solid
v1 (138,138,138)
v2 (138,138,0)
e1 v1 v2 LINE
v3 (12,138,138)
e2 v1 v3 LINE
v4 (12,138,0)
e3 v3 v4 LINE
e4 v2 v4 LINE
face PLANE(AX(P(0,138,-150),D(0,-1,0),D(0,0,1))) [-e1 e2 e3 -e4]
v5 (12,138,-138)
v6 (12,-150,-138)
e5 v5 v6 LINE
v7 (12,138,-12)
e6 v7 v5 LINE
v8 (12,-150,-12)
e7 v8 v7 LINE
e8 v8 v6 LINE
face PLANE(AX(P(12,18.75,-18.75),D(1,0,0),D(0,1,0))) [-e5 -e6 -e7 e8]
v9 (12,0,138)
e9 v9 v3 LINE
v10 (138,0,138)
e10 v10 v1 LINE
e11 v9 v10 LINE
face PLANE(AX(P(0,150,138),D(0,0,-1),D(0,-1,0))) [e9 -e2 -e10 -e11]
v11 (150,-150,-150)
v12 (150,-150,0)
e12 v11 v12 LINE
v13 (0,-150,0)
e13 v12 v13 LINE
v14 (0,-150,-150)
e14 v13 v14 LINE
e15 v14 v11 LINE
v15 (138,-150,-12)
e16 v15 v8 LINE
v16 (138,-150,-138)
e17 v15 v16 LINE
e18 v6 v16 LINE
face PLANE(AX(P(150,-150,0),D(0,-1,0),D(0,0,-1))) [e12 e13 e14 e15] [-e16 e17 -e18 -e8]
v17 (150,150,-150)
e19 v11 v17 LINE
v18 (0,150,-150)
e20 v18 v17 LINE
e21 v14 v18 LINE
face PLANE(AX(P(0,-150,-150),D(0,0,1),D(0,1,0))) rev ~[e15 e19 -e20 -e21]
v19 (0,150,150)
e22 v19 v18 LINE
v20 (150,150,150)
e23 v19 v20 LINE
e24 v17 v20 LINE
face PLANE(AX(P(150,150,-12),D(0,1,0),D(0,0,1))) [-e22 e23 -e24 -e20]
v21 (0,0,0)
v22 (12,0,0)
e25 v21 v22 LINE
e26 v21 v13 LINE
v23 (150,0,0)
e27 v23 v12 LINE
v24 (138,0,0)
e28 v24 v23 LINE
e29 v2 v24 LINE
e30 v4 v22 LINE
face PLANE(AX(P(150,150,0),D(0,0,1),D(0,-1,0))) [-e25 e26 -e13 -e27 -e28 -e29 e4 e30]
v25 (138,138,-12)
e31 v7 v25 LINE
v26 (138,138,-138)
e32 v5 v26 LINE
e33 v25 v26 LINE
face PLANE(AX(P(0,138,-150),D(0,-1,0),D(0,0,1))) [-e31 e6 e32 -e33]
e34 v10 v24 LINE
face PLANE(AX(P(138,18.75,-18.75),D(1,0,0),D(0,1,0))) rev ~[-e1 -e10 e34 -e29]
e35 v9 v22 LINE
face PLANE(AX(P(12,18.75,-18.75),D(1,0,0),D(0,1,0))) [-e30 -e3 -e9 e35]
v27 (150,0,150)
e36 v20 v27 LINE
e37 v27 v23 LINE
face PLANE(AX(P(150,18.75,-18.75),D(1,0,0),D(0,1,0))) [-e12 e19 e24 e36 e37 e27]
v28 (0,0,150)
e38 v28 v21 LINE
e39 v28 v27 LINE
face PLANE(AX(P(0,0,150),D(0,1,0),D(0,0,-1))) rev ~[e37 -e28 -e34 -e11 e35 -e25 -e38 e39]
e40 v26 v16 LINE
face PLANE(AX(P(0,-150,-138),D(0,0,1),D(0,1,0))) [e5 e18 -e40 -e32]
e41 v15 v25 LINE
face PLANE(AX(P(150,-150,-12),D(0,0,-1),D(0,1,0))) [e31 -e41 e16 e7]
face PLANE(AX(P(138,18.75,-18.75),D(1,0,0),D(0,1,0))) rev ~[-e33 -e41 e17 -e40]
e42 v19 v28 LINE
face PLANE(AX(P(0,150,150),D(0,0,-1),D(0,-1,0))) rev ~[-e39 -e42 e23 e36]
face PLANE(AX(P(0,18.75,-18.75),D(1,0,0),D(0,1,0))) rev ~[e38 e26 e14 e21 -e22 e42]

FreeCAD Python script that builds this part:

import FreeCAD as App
import Part
import Sketcher

V = App.Vector
Q = App.Units.Quantity


def faces_at(feature, points):
    """Names of the faces that lie closest to the given points."""
    faces = feature.Shape.Faces
    near = lambda p: min(range(len(faces)), key=lambda i: faces[i].distToShape(Part.Vertex(*p))[0])
    return sorted({f"Face{near(p) + 1}" for p in points})

doc = App.newDocument("Part")
body = doc.addObject("PartDesign::Body", "Body")

sketch1 = body.newObject("Sketcher::SketchObject", "Sketch")
sketch1.AttachmentSupport = (doc.getObject("YZ_Plane"), [""])
sketch1.MapMode = "FlatFace"
sketch1.addGeometry(Part.LineSegment(V(-150, -150, 0), V(150, -150, 0)), False)
sketch1.addGeometry(Part.LineSegment(V(150, -150, 0), V(150, 150, 0)), False)
sketch1.addGeometry(Part.LineSegment(V(150, 150, 0), V(0, 150, 0)), False)
sketch1.addGeometry(Part.LineSegment(V(0, 150, 0), V(0, 0, 0)), False)
sketch1.addGeometry(Part.LineSegment(V(0, 0, 0), V(-150, 0, 0)), False)
sketch1.addGeometry(Part.LineSegment(V(-150, 0, 0), V(-150, -150, 0)), False)
sketch1.addConstraint(Sketcher.Constraint("Coincident", 0, 2, 1, 1))
sketch1.addConstraint(Sketcher.Constraint("Coincident", 1, 2, 2, 1))
sketch1.addConstraint(Sketcher.Constraint("Coincident", 2, 2, 3, 1))
sketch1.addConstraint(Sketcher.Constraint("Coincident", 3, 2, 4, 1))
sketch1.addConstraint(Sketcher.Constraint("Coincident", 4, 2, 5, 1))
sketch1.addConstraint(Sketcher.Constraint("Coincident", 5, 2, 0, 1))
sketch1.addConstraint(Sketcher.Constraint("Horizontal", 0))
sketch1.addConstraint(Sketcher.Constraint("Vertical", 1))
sketch1.addConstraint(Sketcher.Constraint("Horizontal", 2))
sketch1.addConstraint(Sketcher.Constraint("Vertical", 3))
sketch1.addConstraint(Sketcher.Constraint("Horizontal", 4))
sketch1.addConstraint(Sketcher.Constraint("Vertical", 5))
sketch1.addConstraint(Sketcher.Constraint("Coincident", 3, 2, -1, 1))
sketch1.addConstraint(Sketcher.Constraint("Symmetric", 1, 2, 5, 2, -1, 1))
sketch1.addConstraint(Sketcher.Constraint("Equal", 0, 1))
sketch1.addConstraint(Sketcher.Constraint("DistanceX", 0, 1, 0, 2, Q("300 mm")))
pad1 = body.newObject("PartDesign::Pad", "Pad")
pad1.Profile = sketch1
pad1.Length = 150
doc.recompute()

thickness = body.newObject("PartDesign::Thickness", "Thickness")
thickness.Base = (pad1, faces_at(pad1, [(75, 0, 75), (75, -75, 0), (75, -150, -75)]))
thickness.Value = 12
thickness.Reversed = True
thickness.Join = "Arc"

sketch2 = body.newObject("Sketcher::SketchObject", "Sketch001")
sketch2.AttachmentSupport = (doc.getObject("YZ_Plane"), [""])
sketch2.MapMode = "FlatFace"
sketch2.AttachmentOffset = App.Placement(V(0, 0, 150), App.Rotation())
sketch2.addGeometry(Part.LineSegment(V(-150, 0, 0), V(-150, -12, 0)), False)
sketch2.addGeometry(Part.LineSegment(V(-150, -12, 0), V(150, -12, 0)), False)
sketch2.addGeometry(Part.LineSegment(V(150, -12, 0), V(150, 0, 0)), False)
sketch2.addGeometry(Part.LineSegment(V(150, 0, 0), V(-150, 0, 0)), False)
sketch2.addConstraint(Sketcher.Constraint("Coincident", 0, 2, 1, 1))
sketch2.addConstraint(Sketcher.Constraint("Coincident", 1, 2, 2, 1))
sketch2.addConstraint(Sketcher.Constraint("Coincident", 2, 2, 3, 1))
sketch2.addConstraint(Sketcher.Constraint("Coincident", 3, 2, 0, 1))
sketch2.addConstraint(Sketcher.Constraint("Vertical", 0))
sketch2.addConstraint(Sketcher.Constraint("Horizontal", 1))
sketch2.addConstraint(Sketcher.Constraint("Vertical", 2))
sketch2.addConstraint(Sketcher.Constraint("Horizontal", 3))
sketch2.addConstraint(Sketcher.Constraint("Symmetric", 2, 2, 3, 2, -1, 1))
sketch2.addConstraint(Sketcher.Constraint("DistanceX", 1, 1, 1, 2, Q("300 mm")))
sketch2.addConstraint(Sketcher.Constraint("DistanceY", 0, 2, 0, 1, Q("12 mm")))
pad2 = body.newObject("PartDesign::Pad", "Pad001")
pad2.Profile = sketch2
pad2.Length = 150
pad2.Reversed = True

doc.recompute()
